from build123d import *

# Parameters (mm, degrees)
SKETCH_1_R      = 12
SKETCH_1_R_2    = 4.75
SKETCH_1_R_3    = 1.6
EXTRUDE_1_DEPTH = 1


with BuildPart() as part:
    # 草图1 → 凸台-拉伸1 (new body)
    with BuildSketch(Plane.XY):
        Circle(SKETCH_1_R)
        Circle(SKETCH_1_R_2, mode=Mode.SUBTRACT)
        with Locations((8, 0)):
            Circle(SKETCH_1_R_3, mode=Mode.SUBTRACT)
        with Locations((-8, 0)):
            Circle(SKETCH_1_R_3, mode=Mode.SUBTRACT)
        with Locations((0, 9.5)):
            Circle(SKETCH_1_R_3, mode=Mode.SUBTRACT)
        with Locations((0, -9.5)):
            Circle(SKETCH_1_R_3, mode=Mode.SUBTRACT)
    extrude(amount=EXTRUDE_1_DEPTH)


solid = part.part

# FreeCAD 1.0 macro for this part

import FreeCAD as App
import Part
import Sketcher
from FreeCAD import Vector

doc = App.newDocument("Part")
body = doc.addObject("PartDesign::Body", "Body")

# Sketch on XY plane
sketch1 = body.newObject("Sketcher::SketchObject", "Sketch")
sketch1.AttachmentSupport = (doc.getObject("XY_Plane"), [""])
sketch1.MapMode = "FlatFace"
sketch1.addGeometry([
    Part.Circle(Vector(0, 0, 0), Vector(0, 0, 1), 12),  # 0
    Part.Circle(Vector(0, -9.5, 0), Vector(0, 0, 1), 1.6),  # 1
    Part.Circle(Vector(-8, 0, 0), Vector(0, 0, 1), 1.6),  # 2
    Part.Circle(Vector(0, 0, 0), Vector(0, 0, 1), 4.8),  # 3
    Part.Circle(Vector(8, 0, 0), Vector(0, 0, 1), 1.6),  # 4
    Part.Circle(Vector(0, 9.5, 0), Vector(0, 0, 1), 1.6),  # 5
], False)
sketch1.addConstraint([
    Sketcher.Constraint("Coincident", 0, 3, -1, 1),
    Sketcher.Constraint("Coincident", 3, 3, -1, 1),
    Sketcher.Constraint("Equal", 1, 2),
    Sketcher.Constraint("Equal", 2, 4),
    Sketcher.Constraint("Equal", 4, 5),
    Sketcher.Constraint("Symmetric", 2, 3, 4, 3, -1, 1),
    Sketcher.Constraint("Symmetric", 1, 3, 5, 3, -1, 1),
    Sketcher.Constraint("PointOnObject", 1, 3, -2),
    Sketcher.Constraint("PointOnObject", 2, 3, -1),
    Sketcher.Constraint("Diameter", 0, 24.0),
    Sketcher.Constraint("Diameter", 1, 3.2),
    Sketcher.Constraint("Diameter", 3, 9.5),
    Sketcher.Constraint("DistanceX", 2, 3, -1, 1, 8.0),
    Sketcher.Constraint("DistanceY", 1, 3, 5, 3, 19.0),
])
pad1 = body.newObject("PartDesign::Pad", "Pad")
pad1.Profile = sketch1
pad1.Length = 1

doc.recompute()
